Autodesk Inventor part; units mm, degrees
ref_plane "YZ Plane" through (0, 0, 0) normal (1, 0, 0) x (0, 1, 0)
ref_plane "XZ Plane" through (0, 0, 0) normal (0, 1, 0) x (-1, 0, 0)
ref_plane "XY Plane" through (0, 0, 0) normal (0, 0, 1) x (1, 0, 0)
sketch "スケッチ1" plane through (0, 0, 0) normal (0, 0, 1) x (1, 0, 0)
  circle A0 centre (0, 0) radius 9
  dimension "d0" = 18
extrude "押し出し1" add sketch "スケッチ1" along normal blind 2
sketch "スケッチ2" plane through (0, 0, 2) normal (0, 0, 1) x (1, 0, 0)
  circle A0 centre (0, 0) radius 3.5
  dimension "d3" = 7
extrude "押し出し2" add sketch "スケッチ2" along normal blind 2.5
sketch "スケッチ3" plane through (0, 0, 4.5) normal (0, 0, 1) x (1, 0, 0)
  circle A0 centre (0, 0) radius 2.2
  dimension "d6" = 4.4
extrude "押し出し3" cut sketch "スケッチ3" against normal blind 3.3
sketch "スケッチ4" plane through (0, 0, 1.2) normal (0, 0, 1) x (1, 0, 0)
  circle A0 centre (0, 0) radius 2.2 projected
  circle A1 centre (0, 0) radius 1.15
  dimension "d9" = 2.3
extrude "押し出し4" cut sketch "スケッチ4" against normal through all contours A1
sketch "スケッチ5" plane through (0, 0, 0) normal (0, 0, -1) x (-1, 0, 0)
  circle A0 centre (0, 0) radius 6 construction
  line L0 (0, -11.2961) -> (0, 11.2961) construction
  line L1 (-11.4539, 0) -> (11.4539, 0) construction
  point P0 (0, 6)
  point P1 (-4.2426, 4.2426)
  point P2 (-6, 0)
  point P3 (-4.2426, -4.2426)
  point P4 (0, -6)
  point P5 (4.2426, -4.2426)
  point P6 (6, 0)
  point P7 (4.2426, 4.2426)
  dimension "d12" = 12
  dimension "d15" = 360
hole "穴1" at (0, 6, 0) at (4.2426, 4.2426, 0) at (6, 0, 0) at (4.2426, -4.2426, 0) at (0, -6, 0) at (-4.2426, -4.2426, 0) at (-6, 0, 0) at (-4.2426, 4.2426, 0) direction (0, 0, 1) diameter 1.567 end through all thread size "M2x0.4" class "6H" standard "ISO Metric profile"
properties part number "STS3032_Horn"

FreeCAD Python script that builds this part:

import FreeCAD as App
import Part
import Sketcher
from FreeCAD import Vector

doc = App.newDocument("Part")
params = doc.addObject("Spreadsheet::Sheet", "Params")
for row, (alias, value) in enumerate([
    ("sketch1_diameter", "18 mm"),
    ("pad1_length", "2 mm"),
    ("sketch2_diameter", "7 mm"),
    ("pad2_length", "2.5 mm"),
    ("sketch3_diameter", "4.4 mm"),
    ("pocket1_length", "3.3 mm"),
    ("sketch4_diameter", "2.3 mm"),
    ("hole_diameter", "1.567 mm"),
], start=1):
    params.set(f"A{row}", alias)
    params.set(f"B{row}", "=" + value)
    params.setAlias(f"B{row}", alias)

body = doc.addObject("PartDesign::Body", "Body")

# Sketch on XY plane
sketch1 = body.newObject("Sketcher::SketchObject", "Sketch")
sketch1.AttachmentSupport = (doc.getObject("XY_Plane"), [""])
sketch1.MapMode = "FlatFace"
sketch1.addGeometry(Part.Circle(Vector(0, 0, 0), Vector(0, 0, 1), 9), False)
sketch1.addConstraint(Sketcher.Constraint("Coincident", 0, 3, -1, 1))
sketch1.addConstraint(Sketcher.Constraint("Diameter", 0, 18.0))
sketch1.setExpression("Constraints[1]", "Params.sketch1_diameter")
pad1 = body.newObject("PartDesign::Pad", "Pad")
pad1.Profile = sketch1
pad1.setExpression("Length", "Params.pad1_length")

# Sketch on XY plane
sketch2 = body.newObject("Sketcher::SketchObject", "Sketch001")
sketch2.AttachmentSupport = (doc.getObject("XY_Plane"), [""])
sketch2.MapMode = "FlatFace"
sketch2.AttachmentOffset = App.Placement(Vector(0, 0, 2), App.Rotation())
sketch2.addGeometry(Part.Circle(Vector(0, 0, 0), Vector(0, 0, 1), 3.5), False)
sketch2.addConstraint(Sketcher.Constraint("Coincident", 0, 3, -1, 1))
sketch2.addConstraint(Sketcher.Constraint("Diameter", 0, 7.0))
sketch2.setExpression("Constraints[1]", "Params.sketch2_diameter")
pad2 = body.newObject("PartDesign::Pad", "Pad001")
pad2.Profile = sketch2
pad2.setExpression("Length", "Params.pad2_length")

# Sketch on XY plane
sketch3 = body.newObject("Sketcher::SketchObject", "Sketch002")
sketch3.AttachmentSupport = (doc.getObject("XY_Plane"), [""])
sketch3.MapMode = "FlatFace"
sketch3.AttachmentOffset = App.Placement(Vector(0, 0, 4.5), App.Rotation())
sketch3.addGeometry(Part.Circle(Vector(0, 0, 0), Vector(0, 0, 1), 2.2), False)
sketch3.addConstraint(Sketcher.Constraint("Coincident", 0, 3, -1, 1))
sketch3.addConstraint(Sketcher.Constraint("Diameter", 0, 4.4))
sketch3.setExpression("Constraints[1]", "Params.sketch3_diameter")
pocket1 = body.newObject("PartDesign::Pocket", "Pocket")
pocket1.Profile = sketch3
pocket1.setExpression("Length", "Params.pocket1_length")

# Sketch on XY plane
sketch4 = body.newObject("Sketcher::SketchObject", "Sketch003")
sketch4.AttachmentSupport = (doc.getObject("XY_Plane"), [""])
sketch4.MapMode = "FlatFace"
sketch4.AttachmentOffset = App.Placement(Vector(0, 0, 1.2), App.Rotation())
sketch4.addGeometry(Part.Circle(Vector(0, 0, 0), Vector(0, 0, 1), 1.15), False)
sketch4.addConstraint(Sketcher.Constraint("Coincident", 0, 3, -1, 1))
sketch4.addConstraint(Sketcher.Constraint("Diameter", 0, 2.3))
sketch4.setExpression("Constraints[1]", "Params.sketch4_diameter")
pocket2 = body.newObject("PartDesign::Pocket", "Pocket001")
pocket2.Profile = sketch4
pocket2.Type = "ThroughAll"

# Sketch on XY plane
sketch5 = body.newObject("Sketcher::SketchObject", "Sketch004")
sketch5.AttachmentSupport = (doc.getObject("XY_Plane"), [""])
sketch5.MapMode = "FlatFace"
sketch5.addGeometry(Part.Circle(Vector(0, 6, 0), Vector(0, 0, 1), 0.7835), False)
sketch5.addGeometry(Part.Circle(Vector(4.2426, 4.2426, 0), Vector(0, 0, 1), 0.7835), False)
sketch5.addGeometry(Part.Circle(Vector(6, 0, 0), Vector(0, 0, 1), 0.7835), False)
sketch5.addGeometry(Part.Circle(Vector(4.2426, -4.2426, 0), Vector(0, 0, 1), 0.7835), False)
sketch5.addGeometry(Part.Circle(Vector(0, -6, 0), Vector(0, 0, 1), 0.7835), False)
sketch5.addGeometry(Part.Circle(Vector(-4.2426, -4.2426, 0), Vector(0, 0, 1), 0.7835), False)
sketch5.addGeometry(Part.Circle(Vector(-6, 0, 0), Vector(0, 0, 1), 0.7835), False)
sketch5.addGeometry(Part.Circle(Vector(-4.2426, 4.2426, 0), Vector(0, 0, 1), 0.7835), False)
sketch5.addConstraint(Sketcher.Constraint("Equal", 0, 1))
sketch5.addConstraint(Sketcher.Constraint("Equal", 1, 2))
sketch5.addConstraint(Sketcher.Constraint("Equal", 2, 3))
sketch5.addConstraint(Sketcher.Constraint("Equal", 3, 4))
sketch5.addConstraint(Sketcher.Constraint("Equal", 4, 5))
sketch5.addConstraint(Sketcher.Constraint("Equal", 5, 6))
sketch5.addConstraint(Sketcher.Constraint("Equal", 6, 7))
sketch5.addConstraint(Sketcher.Constraint("Symmetric", 0, 3, 4, 3, -1, 1))
sketch5.addConstraint(Sketcher.Constraint("Symmetric", 1, 3, 5, 3, -1, 1))
sketch5.addConstraint(Sketcher.Constraint("Symmetric", 2, 3, 6, 3, -1, 1))
sketch5.addConstraint(Sketcher.Constraint("Symmetric", 3, 3, 7, 3, -1, 1))
sketch5.addConstraint(Sketcher.Constraint("Symmetric", 3, 3, 5, 3, -2))
sketch5.addConstraint(Sketcher.Constraint("PointOnObject", 0, 3, -2))
sketch5.addConstraint(Sketcher.Constraint("PointOnObject", 2, 3, -1))
sketch5.addConstraint(Sketcher.Constraint("Diameter", 0, 1.567))
sketch5.addConstraint(Sketcher.Constraint("DistanceY", -1, 1, 0, 3, 6.0))
sketch5.addConstraint(Sketcher.Constraint("DistanceX", -1, 1, 2, 3, 6.0))
sketch5.addConstraint(Sketcher.Constraint("DistanceX", -1, 1, 1, 3, 4.2426))
sketch5.addConstraint(Sketcher.Constraint("DistanceY", -1, 1, 1, 3, 4.2426))
doc.recompute()
hole = body.newObject("PartDesign::Hole", "Hole")
hole.Profile = sketch5
hole.ThreadType = "None"
hole.setExpression("Diameter", "Params.hole_diameter")
hole.DepthType = "ThroughAll"
hole.Reversed = True

doc.recompute()
